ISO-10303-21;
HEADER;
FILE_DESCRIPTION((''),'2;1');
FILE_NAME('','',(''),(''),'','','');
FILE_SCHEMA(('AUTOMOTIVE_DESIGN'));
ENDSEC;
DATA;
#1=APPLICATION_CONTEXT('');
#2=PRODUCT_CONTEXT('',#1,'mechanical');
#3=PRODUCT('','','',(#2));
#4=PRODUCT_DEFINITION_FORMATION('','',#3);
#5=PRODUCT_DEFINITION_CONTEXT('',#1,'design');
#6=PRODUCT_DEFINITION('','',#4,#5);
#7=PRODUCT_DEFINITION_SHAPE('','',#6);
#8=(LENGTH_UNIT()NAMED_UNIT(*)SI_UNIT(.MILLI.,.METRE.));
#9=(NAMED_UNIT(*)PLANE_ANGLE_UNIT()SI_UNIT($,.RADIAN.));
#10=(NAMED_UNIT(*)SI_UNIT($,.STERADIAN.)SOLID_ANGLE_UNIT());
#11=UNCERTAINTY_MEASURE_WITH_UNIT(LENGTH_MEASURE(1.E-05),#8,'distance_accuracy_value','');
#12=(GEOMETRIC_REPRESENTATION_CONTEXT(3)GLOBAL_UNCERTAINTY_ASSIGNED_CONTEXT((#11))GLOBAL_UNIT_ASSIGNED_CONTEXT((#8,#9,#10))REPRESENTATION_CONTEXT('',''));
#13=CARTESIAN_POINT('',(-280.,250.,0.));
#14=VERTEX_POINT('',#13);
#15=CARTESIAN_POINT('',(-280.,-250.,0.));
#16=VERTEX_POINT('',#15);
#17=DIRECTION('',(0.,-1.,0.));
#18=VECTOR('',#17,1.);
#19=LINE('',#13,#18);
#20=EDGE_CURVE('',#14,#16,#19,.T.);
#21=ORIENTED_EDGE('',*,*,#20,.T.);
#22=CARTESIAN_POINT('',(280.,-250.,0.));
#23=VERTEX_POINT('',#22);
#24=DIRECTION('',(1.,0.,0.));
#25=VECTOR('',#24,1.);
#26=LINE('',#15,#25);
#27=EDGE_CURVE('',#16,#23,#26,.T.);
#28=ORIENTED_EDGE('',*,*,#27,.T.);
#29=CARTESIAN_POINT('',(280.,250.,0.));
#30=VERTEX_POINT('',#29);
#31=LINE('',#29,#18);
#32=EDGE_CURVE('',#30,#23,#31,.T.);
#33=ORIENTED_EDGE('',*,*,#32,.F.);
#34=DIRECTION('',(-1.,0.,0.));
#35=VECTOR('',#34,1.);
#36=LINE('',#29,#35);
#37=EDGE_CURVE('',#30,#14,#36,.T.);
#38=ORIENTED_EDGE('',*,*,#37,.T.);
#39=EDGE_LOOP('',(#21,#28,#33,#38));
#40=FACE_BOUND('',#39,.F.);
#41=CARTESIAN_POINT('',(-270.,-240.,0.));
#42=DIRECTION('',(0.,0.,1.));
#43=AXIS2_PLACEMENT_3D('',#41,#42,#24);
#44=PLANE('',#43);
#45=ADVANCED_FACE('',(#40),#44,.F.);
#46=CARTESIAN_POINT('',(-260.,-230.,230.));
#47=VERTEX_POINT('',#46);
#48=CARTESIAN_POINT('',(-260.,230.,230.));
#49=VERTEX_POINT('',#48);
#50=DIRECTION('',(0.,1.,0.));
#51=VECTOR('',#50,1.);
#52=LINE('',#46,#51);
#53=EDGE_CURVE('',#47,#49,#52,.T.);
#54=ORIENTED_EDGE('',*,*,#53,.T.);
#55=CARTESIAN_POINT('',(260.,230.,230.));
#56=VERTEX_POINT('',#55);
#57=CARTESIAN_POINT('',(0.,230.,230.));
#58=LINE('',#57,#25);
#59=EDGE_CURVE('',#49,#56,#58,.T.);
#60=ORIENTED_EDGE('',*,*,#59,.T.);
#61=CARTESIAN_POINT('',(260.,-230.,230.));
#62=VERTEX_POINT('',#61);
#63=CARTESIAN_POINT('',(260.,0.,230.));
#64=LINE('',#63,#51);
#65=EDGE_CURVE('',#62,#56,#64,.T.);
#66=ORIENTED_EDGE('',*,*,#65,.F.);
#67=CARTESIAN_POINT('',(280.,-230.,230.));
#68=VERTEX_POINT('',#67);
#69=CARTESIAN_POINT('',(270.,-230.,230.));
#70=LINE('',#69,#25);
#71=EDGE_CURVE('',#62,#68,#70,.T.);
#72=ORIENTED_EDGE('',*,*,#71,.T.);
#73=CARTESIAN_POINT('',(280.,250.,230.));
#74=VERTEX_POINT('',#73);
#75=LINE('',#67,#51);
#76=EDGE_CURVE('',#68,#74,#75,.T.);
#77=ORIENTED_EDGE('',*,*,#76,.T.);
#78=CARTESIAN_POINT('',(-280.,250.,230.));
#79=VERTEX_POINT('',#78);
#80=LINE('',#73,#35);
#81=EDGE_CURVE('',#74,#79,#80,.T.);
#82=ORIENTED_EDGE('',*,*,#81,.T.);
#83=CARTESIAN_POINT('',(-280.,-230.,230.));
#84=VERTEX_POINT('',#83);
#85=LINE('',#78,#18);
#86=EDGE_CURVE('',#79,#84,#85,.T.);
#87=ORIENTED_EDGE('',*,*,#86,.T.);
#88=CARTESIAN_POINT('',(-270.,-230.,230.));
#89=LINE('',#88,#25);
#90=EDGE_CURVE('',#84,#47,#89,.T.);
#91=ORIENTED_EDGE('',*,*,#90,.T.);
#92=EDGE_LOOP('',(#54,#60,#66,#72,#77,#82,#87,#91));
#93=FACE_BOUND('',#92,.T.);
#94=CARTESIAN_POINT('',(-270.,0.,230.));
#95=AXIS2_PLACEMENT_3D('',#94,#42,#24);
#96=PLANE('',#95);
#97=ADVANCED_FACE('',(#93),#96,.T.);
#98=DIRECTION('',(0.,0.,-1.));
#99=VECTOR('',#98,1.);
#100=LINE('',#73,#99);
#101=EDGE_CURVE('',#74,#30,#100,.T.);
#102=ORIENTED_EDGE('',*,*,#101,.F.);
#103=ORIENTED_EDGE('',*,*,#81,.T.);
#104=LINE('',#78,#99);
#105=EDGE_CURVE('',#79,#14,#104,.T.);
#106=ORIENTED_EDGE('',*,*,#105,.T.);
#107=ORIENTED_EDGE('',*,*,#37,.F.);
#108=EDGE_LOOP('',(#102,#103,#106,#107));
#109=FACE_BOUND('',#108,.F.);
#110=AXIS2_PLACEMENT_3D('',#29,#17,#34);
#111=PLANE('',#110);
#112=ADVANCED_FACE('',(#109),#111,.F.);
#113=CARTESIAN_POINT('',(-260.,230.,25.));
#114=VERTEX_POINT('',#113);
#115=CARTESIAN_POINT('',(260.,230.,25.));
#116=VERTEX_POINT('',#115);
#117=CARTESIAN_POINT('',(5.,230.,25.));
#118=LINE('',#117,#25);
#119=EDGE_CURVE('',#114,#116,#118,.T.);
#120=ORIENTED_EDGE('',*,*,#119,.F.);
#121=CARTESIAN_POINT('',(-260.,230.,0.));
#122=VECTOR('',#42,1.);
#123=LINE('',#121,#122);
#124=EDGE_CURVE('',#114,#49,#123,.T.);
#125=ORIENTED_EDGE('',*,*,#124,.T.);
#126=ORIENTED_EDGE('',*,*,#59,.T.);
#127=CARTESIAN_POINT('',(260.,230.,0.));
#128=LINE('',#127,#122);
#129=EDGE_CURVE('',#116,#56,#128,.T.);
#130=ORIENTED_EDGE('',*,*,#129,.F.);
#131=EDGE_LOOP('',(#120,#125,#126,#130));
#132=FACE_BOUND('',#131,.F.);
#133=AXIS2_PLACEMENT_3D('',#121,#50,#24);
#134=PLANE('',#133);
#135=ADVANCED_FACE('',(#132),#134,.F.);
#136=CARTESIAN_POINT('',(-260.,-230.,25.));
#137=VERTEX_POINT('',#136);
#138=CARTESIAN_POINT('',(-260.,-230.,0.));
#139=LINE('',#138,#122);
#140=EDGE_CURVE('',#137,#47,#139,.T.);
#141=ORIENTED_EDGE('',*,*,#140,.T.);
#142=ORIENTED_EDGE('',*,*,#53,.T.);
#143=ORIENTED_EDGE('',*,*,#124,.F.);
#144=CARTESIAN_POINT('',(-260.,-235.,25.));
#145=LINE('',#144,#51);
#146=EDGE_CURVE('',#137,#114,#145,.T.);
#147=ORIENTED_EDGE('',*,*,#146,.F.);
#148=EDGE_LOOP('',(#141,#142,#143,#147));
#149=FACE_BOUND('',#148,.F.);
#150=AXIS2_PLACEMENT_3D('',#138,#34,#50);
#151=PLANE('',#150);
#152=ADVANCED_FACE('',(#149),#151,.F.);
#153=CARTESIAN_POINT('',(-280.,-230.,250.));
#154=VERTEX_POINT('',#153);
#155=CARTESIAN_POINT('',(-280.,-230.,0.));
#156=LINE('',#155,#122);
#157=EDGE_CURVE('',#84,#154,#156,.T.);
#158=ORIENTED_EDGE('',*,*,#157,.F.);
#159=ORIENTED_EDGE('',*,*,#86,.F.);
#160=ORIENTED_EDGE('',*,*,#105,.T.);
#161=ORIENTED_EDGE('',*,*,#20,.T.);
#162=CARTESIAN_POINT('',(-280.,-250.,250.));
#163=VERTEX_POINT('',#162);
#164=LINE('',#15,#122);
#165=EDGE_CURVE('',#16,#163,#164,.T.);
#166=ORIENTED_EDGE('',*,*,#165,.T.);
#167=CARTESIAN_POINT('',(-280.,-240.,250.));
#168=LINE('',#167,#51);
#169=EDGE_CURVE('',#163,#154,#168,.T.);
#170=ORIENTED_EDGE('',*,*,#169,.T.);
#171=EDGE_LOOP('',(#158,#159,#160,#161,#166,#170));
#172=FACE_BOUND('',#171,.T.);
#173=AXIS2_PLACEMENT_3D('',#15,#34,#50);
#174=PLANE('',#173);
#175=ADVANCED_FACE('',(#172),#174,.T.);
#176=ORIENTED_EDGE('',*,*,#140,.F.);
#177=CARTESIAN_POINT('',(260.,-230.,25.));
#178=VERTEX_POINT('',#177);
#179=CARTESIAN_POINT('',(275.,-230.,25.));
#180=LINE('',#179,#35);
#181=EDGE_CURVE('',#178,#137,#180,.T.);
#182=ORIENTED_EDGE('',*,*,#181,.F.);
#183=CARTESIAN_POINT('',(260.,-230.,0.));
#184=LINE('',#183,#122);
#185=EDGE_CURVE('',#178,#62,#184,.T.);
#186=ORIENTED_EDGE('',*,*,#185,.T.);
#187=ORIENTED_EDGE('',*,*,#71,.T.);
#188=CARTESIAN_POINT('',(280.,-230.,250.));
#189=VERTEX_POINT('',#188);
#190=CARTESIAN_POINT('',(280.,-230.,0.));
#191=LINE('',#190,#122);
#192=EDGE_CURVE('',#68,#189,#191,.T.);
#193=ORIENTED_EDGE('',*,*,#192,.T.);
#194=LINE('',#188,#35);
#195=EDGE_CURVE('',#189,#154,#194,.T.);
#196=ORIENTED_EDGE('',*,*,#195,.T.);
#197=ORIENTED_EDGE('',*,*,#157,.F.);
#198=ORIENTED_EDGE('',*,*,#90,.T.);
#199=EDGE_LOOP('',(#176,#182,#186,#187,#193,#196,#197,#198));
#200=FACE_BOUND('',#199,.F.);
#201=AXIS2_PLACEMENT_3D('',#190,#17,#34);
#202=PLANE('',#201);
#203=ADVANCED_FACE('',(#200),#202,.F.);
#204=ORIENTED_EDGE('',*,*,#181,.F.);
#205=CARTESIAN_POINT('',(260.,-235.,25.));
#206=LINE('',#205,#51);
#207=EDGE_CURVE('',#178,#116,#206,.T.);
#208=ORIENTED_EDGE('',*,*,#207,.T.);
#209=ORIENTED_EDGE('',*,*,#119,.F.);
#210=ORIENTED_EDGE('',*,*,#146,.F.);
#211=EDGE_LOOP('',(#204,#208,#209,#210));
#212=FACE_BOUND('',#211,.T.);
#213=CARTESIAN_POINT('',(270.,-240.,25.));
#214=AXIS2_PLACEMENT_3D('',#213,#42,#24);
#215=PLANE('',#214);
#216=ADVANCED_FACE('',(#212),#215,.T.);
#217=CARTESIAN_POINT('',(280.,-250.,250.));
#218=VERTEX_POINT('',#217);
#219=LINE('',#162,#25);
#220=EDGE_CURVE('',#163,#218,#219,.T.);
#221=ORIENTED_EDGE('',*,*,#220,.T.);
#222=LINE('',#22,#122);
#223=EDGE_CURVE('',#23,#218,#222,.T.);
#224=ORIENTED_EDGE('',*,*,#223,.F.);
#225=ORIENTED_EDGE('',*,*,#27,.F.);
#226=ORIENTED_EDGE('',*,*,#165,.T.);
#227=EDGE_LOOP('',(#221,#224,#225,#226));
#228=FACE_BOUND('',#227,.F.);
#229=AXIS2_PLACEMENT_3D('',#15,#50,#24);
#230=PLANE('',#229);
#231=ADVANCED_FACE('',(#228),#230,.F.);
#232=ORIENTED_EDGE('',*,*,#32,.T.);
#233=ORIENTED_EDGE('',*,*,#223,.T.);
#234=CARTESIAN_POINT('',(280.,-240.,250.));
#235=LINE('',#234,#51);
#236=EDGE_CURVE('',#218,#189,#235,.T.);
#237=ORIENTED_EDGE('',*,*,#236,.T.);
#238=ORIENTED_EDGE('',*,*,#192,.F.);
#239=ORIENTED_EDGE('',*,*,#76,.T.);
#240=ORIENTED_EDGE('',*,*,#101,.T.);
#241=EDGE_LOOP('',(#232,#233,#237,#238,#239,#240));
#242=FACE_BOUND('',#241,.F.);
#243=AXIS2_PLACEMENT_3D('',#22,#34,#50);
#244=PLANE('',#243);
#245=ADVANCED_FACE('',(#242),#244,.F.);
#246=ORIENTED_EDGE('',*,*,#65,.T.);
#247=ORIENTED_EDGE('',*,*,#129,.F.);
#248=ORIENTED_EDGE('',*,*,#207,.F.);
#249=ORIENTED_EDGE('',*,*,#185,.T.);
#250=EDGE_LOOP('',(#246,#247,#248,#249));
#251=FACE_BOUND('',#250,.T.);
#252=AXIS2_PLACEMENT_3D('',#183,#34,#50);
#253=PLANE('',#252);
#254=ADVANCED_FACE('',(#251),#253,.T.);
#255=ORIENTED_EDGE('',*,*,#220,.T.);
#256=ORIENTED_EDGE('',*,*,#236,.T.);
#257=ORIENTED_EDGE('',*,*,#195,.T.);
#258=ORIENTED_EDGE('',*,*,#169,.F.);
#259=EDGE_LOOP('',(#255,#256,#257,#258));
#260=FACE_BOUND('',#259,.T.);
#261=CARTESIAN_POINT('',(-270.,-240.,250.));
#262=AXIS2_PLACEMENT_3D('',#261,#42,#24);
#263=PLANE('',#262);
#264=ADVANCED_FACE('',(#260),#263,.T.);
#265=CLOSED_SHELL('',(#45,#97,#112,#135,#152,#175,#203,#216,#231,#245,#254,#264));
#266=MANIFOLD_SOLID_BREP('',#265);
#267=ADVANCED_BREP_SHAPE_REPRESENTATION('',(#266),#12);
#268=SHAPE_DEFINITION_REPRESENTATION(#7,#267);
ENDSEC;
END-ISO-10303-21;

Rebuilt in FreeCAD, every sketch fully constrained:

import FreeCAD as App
import Part
import Sketcher

doc = App.newDocument("Part")
body = doc.addObject("PartDesign::Body", "Body")

sketch1 = doc.addObject("Sketcher::SketchObject", "Sketch")
body.addObject(sketch1)
sketch1.AttachmentSupport = (doc.XY_Plane, [""])
sketch1.MapMode = "FlatFace"
sketch1.addGeometry(Part.LineSegment(App.Vector(-280, -230, 0), App.Vector(-260, -230, 0)), False)
sketch1.addGeometry(Part.LineSegment(App.Vector(-260, -230, 0), App.Vector(-260, 230, 0)), False)
sketch1.addGeometry(Part.LineSegment(App.Vector(-260, 230, 0), App.Vector(260, 230, 0)), False)
sketch1.addGeometry(Part.LineSegment(App.Vector(260, 230, 0), App.Vector(260, -230, 0)), False)
sketch1.addGeometry(Part.LineSegment(App.Vector(260, -230, 0), App.Vector(280, -230, 0)), False)
sketch1.addGeometry(Part.LineSegment(App.Vector(280, -230, 0), App.Vector(280, 250, 0)), False)
sketch1.addGeometry(Part.LineSegment(App.Vector(280, 250, 0), App.Vector(-280, 250, 0)), False)
sketch1.addGeometry(Part.LineSegment(App.Vector(-280, 250, 0), App.Vector(-280, -230, 0)), False)
sketch1.addConstraint(Sketcher.Constraint("Coincident", 0, 2, 1, 1))
sketch1.addConstraint(Sketcher.Constraint("Coincident", 1, 2, 2, 1))
sketch1.addConstraint(Sketcher.Constraint("Coincident", 2, 2, 3, 1))
sketch1.addConstraint(Sketcher.Constraint("Coincident", 3, 2, 4, 1))
sketch1.addConstraint(Sketcher.Constraint("Coincident", 4, 2, 5, 1))
sketch1.addConstraint(Sketcher.Constraint("Coincident", 5, 2, 6, 1))
sketch1.addConstraint(Sketcher.Constraint("Coincident", 6, 2, 7, 1))
sketch1.addConstraint(Sketcher.Constraint("Coincident", 7, 2, 0, 1))
sketch1.addConstraint(Sketcher.Constraint("Horizontal", 0))
sketch1.addConstraint(Sketcher.Constraint("Vertical", 1))
sketch1.addConstraint(Sketcher.Constraint("Horizontal", 2))
sketch1.addConstraint(Sketcher.Constraint("Vertical", 3))
sketch1.addConstraint(Sketcher.Constraint("Horizontal", 4))
sketch1.addConstraint(Sketcher.Constraint("Vertical", 5))
sketch1.addConstraint(Sketcher.Constraint("Horizontal", 6))
sketch1.addConstraint(Sketcher.Constraint("Vertical", 7))
sketch1.addConstraint(Sketcher.Constraint("Symmetric", 0, 2, 2, 2, -1, 1))
sketch1.addConstraint(Sketcher.Constraint("Symmetric", 4, 2, 7, 2, -2))
sketch1.addConstraint(Sketcher.Constraint("DistanceX", 0, 1, 0, 2, 20.0))
sketch1.addConstraint(Sketcher.Constraint("DistanceX", 2, 1, 2, 2, 520.0))
sketch1.addConstraint(Sketcher.Constraint("DistanceY", 1, 1, 1, 2, 460.0))
sketch1.addConstraint(Sketcher.Constraint("DistanceY", 5, 1, 5, 2, 480.0))
pad1 = doc.addObject("PartDesign::Pad", "Pad")
body.addObject(pad1)
pad1.Profile = sketch1
pad1.Length = 230

sketch2 = doc.addObject("Sketcher::SketchObject", "Sketch001")
body.addObject(sketch2)
sketch2.AttachmentSupport = (doc.XY_Plane, [""])
sketch2.MapMode = "FlatFace"
sketch2.addGeometry(Part.LineSegment(App.Vector(-280, -230, 0), App.Vector(-280, -250, 0)), False)
sketch2.addGeometry(Part.LineSegment(App.Vector(-280, -250, 0), App.Vector(280, -250, 0)), False)
sketch2.addGeometry(Part.LineSegment(App.Vector(280, -250, 0), App.Vector(280, -230, 0)), False)
sketch2.addGeometry(Part.LineSegment(App.Vector(280, -230, 0), App.Vector(-280, -230, 0)), False)
sketch2.addConstraint(Sketcher.Constraint("Coincident", 0, 2, 1, 1))
sketch2.addConstraint(Sketcher.Constraint("Coincident", 1, 2, 2, 1))
sketch2.addConstraint(Sketcher.Constraint("Coincident", 2, 2, 3, 1))
sketch2.addConstraint(Sketcher.Constraint("Coincident", 3, 2, 0, 1))
sketch2.addConstraint(Sketcher.Constraint("Vertical", 0))
sketch2.addConstraint(Sketcher.Constraint("Horizontal", 1))
sketch2.addConstraint(Sketcher.Constraint("Vertical", 2))
sketch2.addConstraint(Sketcher.Constraint("Horizontal", 3))
sketch2.addConstraint(Sketcher.Constraint("DistanceX", 1, 1, 1, 2, 560.0))
sketch2.addConstraint(Sketcher.Constraint("DistanceY", 0, 2, 0, 1, 20.0))
sketch2.addConstraint(Sketcher.Constraint("DistanceX", 0, 2, -1, 1, 280.0))
sketch2.addConstraint(Sketcher.Constraint("DistanceY", 0, 2, -1, 1, 250.0))
pad2 = doc.addObject("PartDesign::Pad", "Pad001")
body.addObject(pad2)
pad2.Profile = sketch2
pad2.Length = 250

sketch3 = doc.addObject("Sketcher::SketchObject", "Sketch002")
body.addObject(sketch3)
sketch3.AttachmentSupport = (doc.XY_Plane, [""])
sketch3.MapMode = "FlatFace"
sketch3.addGeometry(Part.LineSegment(App.Vector(280, 250, 0), App.Vector(-280, 250, 0)), False)
sketch3.addGeometry(Part.LineSegment(App.Vector(-280, 250, 0), App.Vector(-280, -250, 0)), False)
sketch3.addGeometry(Part.LineSegment(App.Vector(-280, -250, 0), App.Vector(280, -250, 0)), False)
sketch3.addGeometry(Part.LineSegment(App.Vector(280, -250, 0), App.Vector(280, 250, 0)), False)
sketch3.addConstraint(Sketcher.Constraint("Coincident", 0, 2, 1, 1))
sketch3.addConstraint(Sketcher.Constraint("Coincident", 1, 2, 2, 1))
sketch3.addConstraint(Sketcher.Constraint("Coincident", 2, 2, 3, 1))
sketch3.addConstraint(Sketcher.Constraint("Coincident", 3, 2, 0, 1))
sketch3.addConstraint(Sketcher.Constraint("Horizontal", 0))
sketch3.addConstraint(Sketcher.Constraint("Vertical", 1))
sketch3.addConstraint(Sketcher.Constraint("Horizontal", 2))
sketch3.addConstraint(Sketcher.Constraint("Vertical", 3))
sketch3.addConstraint(Sketcher.Constraint("Symmetric", 0, 2, 2, 2, -1, 1))
sketch3.addConstraint(Sketcher.Constraint("DistanceX", 0, 2, 0, 1, 560.0))
sketch3.addConstraint(Sketcher.Constraint("DistanceY", 1, 2, 1, 1, 500.0))
pad3 = doc.addObject("PartDesign::Pad", "Pad002")
body.addObject(pad3)
pad3.Profile = sketch3
pad3.Length = 25

doc.recompute()
